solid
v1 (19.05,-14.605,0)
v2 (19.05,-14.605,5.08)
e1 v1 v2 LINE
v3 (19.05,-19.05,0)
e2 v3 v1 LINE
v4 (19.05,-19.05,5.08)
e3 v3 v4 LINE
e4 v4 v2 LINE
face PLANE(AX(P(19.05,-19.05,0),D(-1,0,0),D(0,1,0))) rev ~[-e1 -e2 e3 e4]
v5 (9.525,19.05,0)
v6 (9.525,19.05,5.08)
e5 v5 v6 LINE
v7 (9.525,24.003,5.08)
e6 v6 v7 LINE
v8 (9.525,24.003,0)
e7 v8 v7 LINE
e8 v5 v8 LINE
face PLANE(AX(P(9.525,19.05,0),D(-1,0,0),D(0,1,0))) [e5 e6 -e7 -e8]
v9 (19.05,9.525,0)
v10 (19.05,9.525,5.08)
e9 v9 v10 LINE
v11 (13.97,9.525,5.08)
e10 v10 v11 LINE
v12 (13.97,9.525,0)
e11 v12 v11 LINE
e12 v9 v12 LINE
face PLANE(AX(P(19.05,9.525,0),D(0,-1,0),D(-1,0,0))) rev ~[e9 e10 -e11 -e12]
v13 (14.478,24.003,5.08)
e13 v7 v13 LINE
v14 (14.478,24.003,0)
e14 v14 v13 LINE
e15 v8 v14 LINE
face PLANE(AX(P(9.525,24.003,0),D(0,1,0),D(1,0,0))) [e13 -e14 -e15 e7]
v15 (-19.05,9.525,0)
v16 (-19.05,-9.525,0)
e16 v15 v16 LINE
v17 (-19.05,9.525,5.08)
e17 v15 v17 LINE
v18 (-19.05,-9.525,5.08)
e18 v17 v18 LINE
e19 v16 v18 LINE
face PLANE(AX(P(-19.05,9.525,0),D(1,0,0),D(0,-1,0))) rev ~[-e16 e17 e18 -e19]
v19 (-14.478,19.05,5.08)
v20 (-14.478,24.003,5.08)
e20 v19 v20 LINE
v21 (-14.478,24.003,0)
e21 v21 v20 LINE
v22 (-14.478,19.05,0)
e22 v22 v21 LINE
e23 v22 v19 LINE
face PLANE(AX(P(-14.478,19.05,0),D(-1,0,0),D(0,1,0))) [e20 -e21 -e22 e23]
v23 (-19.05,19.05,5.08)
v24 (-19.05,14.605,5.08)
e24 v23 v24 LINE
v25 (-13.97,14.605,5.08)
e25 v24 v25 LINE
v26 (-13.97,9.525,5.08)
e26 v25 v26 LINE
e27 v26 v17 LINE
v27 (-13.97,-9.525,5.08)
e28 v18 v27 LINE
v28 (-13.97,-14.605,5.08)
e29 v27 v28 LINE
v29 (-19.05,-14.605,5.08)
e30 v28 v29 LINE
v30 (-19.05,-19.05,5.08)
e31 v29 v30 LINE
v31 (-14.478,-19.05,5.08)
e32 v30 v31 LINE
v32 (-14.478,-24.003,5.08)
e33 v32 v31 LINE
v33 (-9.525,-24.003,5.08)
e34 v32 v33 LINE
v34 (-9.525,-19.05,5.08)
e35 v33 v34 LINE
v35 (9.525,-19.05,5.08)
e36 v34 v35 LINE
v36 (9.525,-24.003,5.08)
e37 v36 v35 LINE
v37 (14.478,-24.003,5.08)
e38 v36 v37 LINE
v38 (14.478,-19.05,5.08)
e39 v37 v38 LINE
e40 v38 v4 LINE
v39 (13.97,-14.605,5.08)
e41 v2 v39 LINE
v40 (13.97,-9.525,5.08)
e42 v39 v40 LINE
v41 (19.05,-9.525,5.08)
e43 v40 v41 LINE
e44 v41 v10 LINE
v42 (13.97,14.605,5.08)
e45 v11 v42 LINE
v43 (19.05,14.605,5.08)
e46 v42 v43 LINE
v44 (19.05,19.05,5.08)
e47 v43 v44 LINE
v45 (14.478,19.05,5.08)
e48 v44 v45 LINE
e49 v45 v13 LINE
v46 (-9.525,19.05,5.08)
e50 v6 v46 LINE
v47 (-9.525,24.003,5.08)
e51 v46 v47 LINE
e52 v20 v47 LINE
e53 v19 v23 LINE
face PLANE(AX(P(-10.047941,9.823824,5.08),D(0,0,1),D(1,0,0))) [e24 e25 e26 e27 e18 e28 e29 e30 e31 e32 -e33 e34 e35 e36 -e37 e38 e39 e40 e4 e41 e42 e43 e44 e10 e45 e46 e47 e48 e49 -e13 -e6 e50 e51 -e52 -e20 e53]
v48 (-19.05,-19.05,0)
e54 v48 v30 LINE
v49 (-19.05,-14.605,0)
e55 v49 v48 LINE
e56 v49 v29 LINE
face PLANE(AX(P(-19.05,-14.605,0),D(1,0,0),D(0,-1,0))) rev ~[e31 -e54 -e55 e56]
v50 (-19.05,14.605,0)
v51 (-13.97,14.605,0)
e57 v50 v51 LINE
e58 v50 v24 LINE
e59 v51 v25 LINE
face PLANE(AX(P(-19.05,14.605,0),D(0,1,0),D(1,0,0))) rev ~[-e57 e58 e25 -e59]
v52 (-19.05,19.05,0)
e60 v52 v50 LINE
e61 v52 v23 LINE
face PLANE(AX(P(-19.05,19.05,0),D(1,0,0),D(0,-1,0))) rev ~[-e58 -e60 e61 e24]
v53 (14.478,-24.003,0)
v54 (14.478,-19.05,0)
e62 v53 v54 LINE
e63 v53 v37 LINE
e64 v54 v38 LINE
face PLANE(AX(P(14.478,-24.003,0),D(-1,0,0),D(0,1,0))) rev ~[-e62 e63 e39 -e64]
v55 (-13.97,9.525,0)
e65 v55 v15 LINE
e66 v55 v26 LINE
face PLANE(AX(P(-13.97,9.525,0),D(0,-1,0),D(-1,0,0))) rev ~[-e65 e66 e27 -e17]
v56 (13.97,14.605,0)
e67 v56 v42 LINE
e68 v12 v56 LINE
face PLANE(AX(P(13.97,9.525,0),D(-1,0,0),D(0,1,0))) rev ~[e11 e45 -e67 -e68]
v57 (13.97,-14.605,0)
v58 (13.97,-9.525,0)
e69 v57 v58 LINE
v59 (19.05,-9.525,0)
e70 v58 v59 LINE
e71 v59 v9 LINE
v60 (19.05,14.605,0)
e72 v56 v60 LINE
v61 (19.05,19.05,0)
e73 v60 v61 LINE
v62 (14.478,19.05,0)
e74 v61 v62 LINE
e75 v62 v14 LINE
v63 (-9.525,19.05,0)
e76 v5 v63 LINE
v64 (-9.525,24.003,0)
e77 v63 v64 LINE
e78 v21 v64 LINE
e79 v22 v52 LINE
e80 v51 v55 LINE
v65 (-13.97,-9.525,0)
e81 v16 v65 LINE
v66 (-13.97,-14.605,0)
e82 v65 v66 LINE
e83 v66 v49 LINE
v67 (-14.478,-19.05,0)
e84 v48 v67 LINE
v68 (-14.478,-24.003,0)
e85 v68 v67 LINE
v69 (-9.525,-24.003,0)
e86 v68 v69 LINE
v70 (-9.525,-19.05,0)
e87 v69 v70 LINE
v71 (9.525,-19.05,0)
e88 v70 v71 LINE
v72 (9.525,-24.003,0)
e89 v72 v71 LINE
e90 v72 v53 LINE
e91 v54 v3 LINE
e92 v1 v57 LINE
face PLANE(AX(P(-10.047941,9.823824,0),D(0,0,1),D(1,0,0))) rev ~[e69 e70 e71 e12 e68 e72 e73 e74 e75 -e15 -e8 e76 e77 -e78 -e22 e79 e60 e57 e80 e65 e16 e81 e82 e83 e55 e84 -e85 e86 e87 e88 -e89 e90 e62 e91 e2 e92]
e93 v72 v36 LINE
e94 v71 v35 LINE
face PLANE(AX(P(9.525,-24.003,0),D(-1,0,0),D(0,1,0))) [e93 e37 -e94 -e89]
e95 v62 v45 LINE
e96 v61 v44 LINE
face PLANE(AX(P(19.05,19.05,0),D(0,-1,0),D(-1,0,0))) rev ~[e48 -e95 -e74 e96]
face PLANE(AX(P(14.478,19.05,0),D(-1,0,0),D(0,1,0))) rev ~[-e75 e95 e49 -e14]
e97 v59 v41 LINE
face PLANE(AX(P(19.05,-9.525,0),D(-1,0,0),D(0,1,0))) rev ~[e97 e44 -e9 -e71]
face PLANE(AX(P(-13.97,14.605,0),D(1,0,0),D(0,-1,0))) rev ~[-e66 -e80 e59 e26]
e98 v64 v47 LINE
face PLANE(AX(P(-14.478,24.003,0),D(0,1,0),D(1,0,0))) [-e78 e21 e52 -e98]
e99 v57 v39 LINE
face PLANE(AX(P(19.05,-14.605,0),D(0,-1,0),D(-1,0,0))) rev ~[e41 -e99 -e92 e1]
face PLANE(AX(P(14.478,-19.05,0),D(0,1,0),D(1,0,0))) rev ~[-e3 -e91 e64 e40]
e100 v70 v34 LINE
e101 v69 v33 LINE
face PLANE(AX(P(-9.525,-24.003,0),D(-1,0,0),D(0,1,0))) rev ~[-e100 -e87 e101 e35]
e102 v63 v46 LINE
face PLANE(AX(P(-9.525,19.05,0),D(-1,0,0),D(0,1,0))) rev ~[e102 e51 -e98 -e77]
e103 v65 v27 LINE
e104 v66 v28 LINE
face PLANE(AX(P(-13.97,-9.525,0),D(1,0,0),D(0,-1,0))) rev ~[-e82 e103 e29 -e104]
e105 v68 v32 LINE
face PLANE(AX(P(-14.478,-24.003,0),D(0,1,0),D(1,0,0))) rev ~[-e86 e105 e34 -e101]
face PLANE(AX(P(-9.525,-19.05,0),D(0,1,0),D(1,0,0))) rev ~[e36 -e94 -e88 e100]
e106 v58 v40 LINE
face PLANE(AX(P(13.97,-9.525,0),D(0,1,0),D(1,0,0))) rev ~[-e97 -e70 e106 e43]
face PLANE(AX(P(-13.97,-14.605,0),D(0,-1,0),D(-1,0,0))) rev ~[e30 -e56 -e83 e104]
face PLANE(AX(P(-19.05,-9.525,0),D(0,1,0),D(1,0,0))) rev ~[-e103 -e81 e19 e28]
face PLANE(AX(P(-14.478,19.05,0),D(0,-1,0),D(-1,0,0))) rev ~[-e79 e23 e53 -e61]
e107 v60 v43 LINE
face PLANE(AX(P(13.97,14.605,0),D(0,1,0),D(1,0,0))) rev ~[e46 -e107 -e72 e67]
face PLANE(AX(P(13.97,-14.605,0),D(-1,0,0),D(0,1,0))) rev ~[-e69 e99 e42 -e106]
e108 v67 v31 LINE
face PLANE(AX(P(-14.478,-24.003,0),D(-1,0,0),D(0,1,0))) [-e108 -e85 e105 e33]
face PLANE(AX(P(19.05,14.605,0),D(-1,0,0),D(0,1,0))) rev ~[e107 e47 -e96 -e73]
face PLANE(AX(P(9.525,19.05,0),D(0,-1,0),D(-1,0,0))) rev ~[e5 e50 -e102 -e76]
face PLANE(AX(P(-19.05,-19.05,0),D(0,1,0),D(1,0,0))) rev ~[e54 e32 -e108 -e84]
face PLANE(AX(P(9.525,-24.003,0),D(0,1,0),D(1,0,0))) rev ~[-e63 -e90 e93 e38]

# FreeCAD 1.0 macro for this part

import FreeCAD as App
import Part
import Sketcher

V = App.Vector
Q = App.Units.Quantity

doc = App.newDocument("Part")
body = doc.addObject("PartDesign::Body", "Body")

# Sketch on XY plane
sketch1 = body.newObject("Sketcher::SketchObject", "Sketch")
sketch1.AttachmentSupport = (doc.getObject("XY_Plane"), [""])
sketch1.MapMode = "FlatFace"
sketch1.addGeometry([
    Part.LineSegment(V(-19.05, 9.525, 0), V(-19.05, -9.525, 0)),  # 0
    Part.LineSegment(V(-19.05, -9.525, 0), V(-13.97, -9.525, 0)),  # 1
    Part.LineSegment(V(-13.97, -9.525, 0), V(-13.97, -14.605, 0)),  # 2
    Part.LineSegment(V(-13.97, -14.605, 0), V(-19.05, -14.605, 0)),  # 3
    Part.LineSegment(V(-19.05, -14.605, 0), V(-19.05, -19.05, 0)),  # 4
    Part.LineSegment(V(-19.05, -19.05, 0), V(-14.478, -19.05, 0)),  # 5
    Part.LineSegment(V(-14.478, -19.05, 0), V(-14.478, -24.003, 0)),  # 6
    Part.LineSegment(V(-14.478, -24.003, 0), V(-9.525, -24.003, 0)),  # 7
    Part.LineSegment(V(-9.525, -24.003, 0), V(-9.525, -19.05, 0)),  # 8
    Part.LineSegment(V(-9.525, -19.05, 0), V(9.525, -19.05, 0)),  # 9
    Part.LineSegment(V(9.525, -19.05, 0), V(9.525, -24.003, 0)),  # 10
    Part.LineSegment(V(9.525, -24.003, 0), V(14.478, -24.003, 0)),  # 11
    Part.LineSegment(V(14.478, -24.003, 0), V(14.478, -19.05, 0)),  # 12
    Part.LineSegment(V(14.478, -19.05, 0), V(19.05, -19.05, 0)),  # 13
    Part.LineSegment(V(19.05, -19.05, 0), V(19.05, -14.605, 0)),  # 14
    Part.LineSegment(V(19.05, -14.605, 0), V(13.97, -14.605, 0)),  # 15
    Part.LineSegment(V(13.97, -14.605, 0), V(13.97, -9.525, 0)),  # 16
    Part.LineSegment(V(13.97, -9.525, 0), V(19.05, -9.525, 0)),  # 17
    Part.LineSegment(V(19.05, -9.525, 0), V(19.05, 9.525, 0)),  # 18
    Part.LineSegment(V(19.05, 9.525, 0), V(13.97, 9.525, 0)),  # 19
    Part.LineSegment(V(13.97, 9.525, 0), V(13.97, 14.605, 0)),  # 20
    Part.LineSegment(V(13.97, 14.605, 0), V(19.05, 14.605, 0)),  # 21
    Part.LineSegment(V(19.05, 14.605, 0), V(19.05, 19.05, 0)),  # 22
    Part.LineSegment(V(19.05, 19.05, 0), V(14.478, 19.05, 0)),  # 23
    Part.LineSegment(V(14.478, 19.05, 0), V(14.478, 24.003, 0)),  # 24
    Part.LineSegment(V(14.478, 24.003, 0), V(9.525, 24.003, 0)),  # 25
    Part.LineSegment(V(9.525, 24.003, 0), V(9.525, 19.05, 0)),  # 26
    Part.LineSegment(V(9.525, 19.05, 0), V(-9.525, 19.05, 0)),  # 27
    Part.LineSegment(V(-9.525, 19.05, 0), V(-9.525, 24.003, 0)),  # 28
    Part.LineSegment(V(-9.525, 24.003, 0), V(-14.478, 24.003, 0)),  # 29
    Part.LineSegment(V(-14.478, 24.003, 0), V(-14.478, 19.05, 0)),  # 30
    Part.LineSegment(V(-14.478, 19.05, 0), V(-19.05, 19.05, 0)),  # 31
    Part.LineSegment(V(-19.05, 19.05, 0), V(-19.05, 14.605, 0)),  # 32
    Part.LineSegment(V(-19.05, 14.605, 0), V(-13.97, 14.605, 0)),  # 33
    Part.LineSegment(V(-13.97, 14.605, 0), V(-13.97, 9.525, 0)),  # 34
    Part.LineSegment(V(-13.97, 9.525, 0), V(-19.05, 9.525, 0)),  # 35
], False)
sketch1.addConstraint([
    Sketcher.Constraint("Coincident", 0, 2, 1, 1),
    Sketcher.Constraint("Coincident", 1, 2, 2, 1),
    Sketcher.Constraint("Coincident", 2, 2, 3, 1),
    Sketcher.Constraint("Coincident", 3, 2, 4, 1),
    Sketcher.Constraint("Coincident", 4, 2, 5, 1),
    Sketcher.Constraint("Coincident", 5, 2, 6, 1),
    Sketcher.Constraint("Coincident", 6, 2, 7, 1),
    Sketcher.Constraint("Coincident", 7, 2, 8, 1),
    Sketcher.Constraint("Coincident", 8, 2, 9, 1),
    Sketcher.Constraint("Coincident", 9, 2, 10, 1),
    Sketcher.Constraint("Coincident", 10, 2, 11, 1),
    Sketcher.Constraint("Coincident", 11, 2, 12, 1),
    Sketcher.Constraint("Coincident", 12, 2, 13, 1),
    Sketcher.Constraint("Coincident", 13, 2, 14, 1),
    Sketcher.Constraint("Coincident", 14, 2, 15, 1),
    Sketcher.Constraint("Coincident", 15, 2, 16, 1),
    Sketcher.Constraint("Coincident", 16, 2, 17, 1),
    Sketcher.Constraint("Coincident", 17, 2, 18, 1),
    Sketcher.Constraint("Coincident", 18, 2, 19, 1),
    Sketcher.Constraint("Coincident", 19, 2, 20, 1),
    Sketcher.Constraint("Coincident", 20, 2, 21, 1),
    Sketcher.Constraint("Coincident", 21, 2, 22, 1),
    Sketcher.Constraint("Coincident", 22, 2, 23, 1),
    Sketcher.Constraint("Coincident", 23, 2, 24, 1),
    Sketcher.Constraint("Coincident", 24, 2, 25, 1),
    Sketcher.Constraint("Coincident", 25, 2, 26, 1),
    Sketcher.Constraint("Coincident", 26, 2, 27, 1),
    Sketcher.Constraint("Coincident", 27, 2, 28, 1),
    Sketcher.Constraint("Coincident", 28, 2, 29, 1),
    Sketcher.Constraint("Coincident", 29, 2, 30, 1),
    Sketcher.Constraint("Coincident", 30, 2, 31, 1),
    Sketcher.Constraint("Coincident", 31, 2, 32, 1),
    Sketcher.Constraint("Coincident", 32, 2, 33, 1),
    Sketcher.Constraint("Coincident", 33, 2, 34, 1),
    Sketcher.Constraint("Coincident", 34, 2, 35, 1),
    Sketcher.Constraint("Coincident", 35, 2, 0, 1),
    Sketcher.Constraint("Vertical", 0),
    Sketcher.Constraint("Horizontal", 1),
    Sketcher.Constraint("Vertical", 2),
    Sketcher.Constraint("Horizontal", 3),
    Sketcher.Constraint("Vertical", 4),
    Sketcher.Constraint("Horizontal", 5),
    Sketcher.Constraint("Vertical", 6),
    Sketcher.Constraint("Horizontal", 7),
    Sketcher.Constraint("Vertical", 8),
    Sketcher.Constraint("Horizontal", 9),
    Sketcher.Constraint("Vertical", 10),
    Sketcher.Constraint("Horizontal", 11),
    Sketcher.Constraint("Vertical", 12),
    Sketcher.Constraint("Horizontal", 13),
    Sketcher.Constraint("Vertical", 14),
    Sketcher.Constraint("Horizontal", 15),
    Sketcher.Constraint("Vertical", 16),
    Sketcher.Constraint("Horizontal", 17),
    Sketcher.Constraint("Vertical", 18),
    Sketcher.Constraint("Horizontal", 19),
    Sketcher.Constraint("Vertical", 20),
    Sketcher.Constraint("Horizontal", 21),
    Sketcher.Constraint("Vertical", 22),
    Sketcher.Constraint("Horizontal", 23),
    Sketcher.Constraint("Vertical", 24),
    Sketcher.Constraint("Horizontal", 25),
    Sketcher.Constraint("Vertical", 26),
    Sketcher.Constraint("Horizontal", 27),
    Sketcher.Constraint("Vertical", 28),
    Sketcher.Constraint("Horizontal", 29),
    Sketcher.Constraint("Vertical", 30),
    Sketcher.Constraint("Horizontal", 31),
    Sketcher.Constraint("Vertical", 32),
    Sketcher.Constraint("Horizontal", 33),
    Sketcher.Constraint("Vertical", 34),
    Sketcher.Constraint("Horizontal", 35),
    Sketcher.Constraint("Symmetric", 0, 2, 18, 2, -1, 1),
    Sketcher.Constraint("Symmetric", 2, 2, 20, 2, -1, 1),
    Sketcher.Constraint("Symmetric", 4, 2, 22, 2, -1, 1),
    Sketcher.Constraint("Symmetric", 6, 2, 24, 2, -1, 1),
    Sketcher.Constraint("Symmetric", 8, 2, 26, 2, -1, 1),
    Sketcher.Constraint("Symmetric", 10, 2, 28, 2, -1, 1),
    Sketcher.Constraint("Symmetric", 12, 2, 30, 2, -1, 1),
    Sketcher.Constraint("Symmetric", 14, 2, 32, 2, -1, 1),
    Sketcher.Constraint("Symmetric", 16, 2, 34, 2, -1, 1),
    Sketcher.Constraint("Symmetric", 7, 2, 10, 2, -2),
    Sketcher.Constraint("Symmetric", 5, 2, 12, 2, -2),
    Sketcher.Constraint("Symmetric", 3, 2, 14, 2, -2),
    Sketcher.Constraint("Symmetric", 1, 2, 16, 2, -2),
    Sketcher.Constraint("Horizontal", 5, 2, 8, 2),
    Sketcher.Constraint("Vertical", 0, 2, 3, 2),
    Sketcher.Constraint("Equal", 27, 0),
    Sketcher.Constraint("Equal", 35, 2),
    Sketcher.Constraint("Equal", 29, 6),
    Sketcher.Constraint("DistanceX", 1, 1, 1, 2, Q("0.2 in")),
    Sketcher.Constraint("DistanceX", 5, 1, 5, 2, Q("0.18 in")),
    Sketcher.Constraint("DistanceX", 9, 1, 9, 2, Q("0.75 in")),
    Sketcher.Constraint("DistanceX", 7, 1, 7, 2, Q("0.195 in")),
    Sketcher.Constraint("DistanceY", 4, 2, 4, 1, Q("0.175 in")),
])
pad1 = body.newObject("PartDesign::Pad", "Pad")
pad1.Profile = sketch1
pad1.Length = Q("0.2 in")

doc.recompute()
